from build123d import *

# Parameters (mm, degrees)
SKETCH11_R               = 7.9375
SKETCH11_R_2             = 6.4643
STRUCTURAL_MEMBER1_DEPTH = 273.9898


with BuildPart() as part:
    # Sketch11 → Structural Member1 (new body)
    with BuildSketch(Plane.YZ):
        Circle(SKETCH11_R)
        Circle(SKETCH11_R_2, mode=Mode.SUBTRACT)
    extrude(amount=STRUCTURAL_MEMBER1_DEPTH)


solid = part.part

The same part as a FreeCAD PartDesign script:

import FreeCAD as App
import Part
import Sketcher
from FreeCAD import Vector
Q = App.Units.Quantity

doc = App.newDocument("Part")
body = doc.addObject("PartDesign::Body", "Body")

# Sketch on YZ plane
sketch1 = doc.addObject("Sketcher::SketchObject", "Sketch")
body.addObject(sketch1)
sketch1.AttachmentSupport = (doc.YZ_Plane, [""])
sketch1.MapMode = "FlatFace"
sketch1.addGeometry([
    Part.Circle(Vector(0, 0, 0), Vector(0, 0, 1), 8),
    Part.Circle(Vector(0, 0, 0), Vector(0, 0, 1), 6),
], False)
sketch1.addConstraint([
    Sketcher.Constraint("Coincident", 0, 3, -1, 1),
    Sketcher.Constraint("Coincident", 1, 3, -1, 1),
    Sketcher.Constraint("Diameter", 0, Q("0.625 in")),
    Sketcher.Constraint("Diameter", 1, Q("0.509 in")),
])
pad1 = doc.addObject("PartDesign::Pad", "Pad")
body.addObject(pad1)
pad1.Profile = sketch1
pad1.Length = Q("10.787 in")

doc.recompute()
